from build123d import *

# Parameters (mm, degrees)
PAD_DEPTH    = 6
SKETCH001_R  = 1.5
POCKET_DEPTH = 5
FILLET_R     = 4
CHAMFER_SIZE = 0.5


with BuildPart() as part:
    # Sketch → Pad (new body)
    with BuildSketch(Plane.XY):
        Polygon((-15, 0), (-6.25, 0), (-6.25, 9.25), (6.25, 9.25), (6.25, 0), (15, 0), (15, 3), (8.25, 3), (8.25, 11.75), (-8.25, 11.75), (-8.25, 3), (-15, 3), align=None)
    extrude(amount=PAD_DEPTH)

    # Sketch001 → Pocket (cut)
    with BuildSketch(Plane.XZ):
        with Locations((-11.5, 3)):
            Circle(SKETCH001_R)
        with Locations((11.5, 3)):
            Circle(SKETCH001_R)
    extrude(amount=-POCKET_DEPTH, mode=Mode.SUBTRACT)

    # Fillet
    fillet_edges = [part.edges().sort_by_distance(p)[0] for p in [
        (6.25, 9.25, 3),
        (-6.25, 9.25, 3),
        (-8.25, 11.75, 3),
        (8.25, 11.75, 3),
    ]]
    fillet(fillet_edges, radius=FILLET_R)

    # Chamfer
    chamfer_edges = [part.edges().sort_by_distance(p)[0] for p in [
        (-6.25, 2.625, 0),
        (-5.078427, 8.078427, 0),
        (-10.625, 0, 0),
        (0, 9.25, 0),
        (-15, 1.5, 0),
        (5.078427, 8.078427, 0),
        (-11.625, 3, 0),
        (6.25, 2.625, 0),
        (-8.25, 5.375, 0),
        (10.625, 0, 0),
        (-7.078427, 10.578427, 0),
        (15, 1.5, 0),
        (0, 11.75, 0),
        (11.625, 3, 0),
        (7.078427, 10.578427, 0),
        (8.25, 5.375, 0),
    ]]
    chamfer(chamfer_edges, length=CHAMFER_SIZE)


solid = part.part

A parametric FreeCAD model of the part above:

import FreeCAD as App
import Part
import Sketcher


def edges_at(feature, points):
    """Names of the edges that pass closest to the given points."""
    edges = feature.Shape.Edges
    near = lambda p: min(range(len(edges)), key=lambda i: edges[i].distToShape(Part.Vertex(*p))[0])
    return sorted({f"Edge{near(p) + 1}" for p in points})

doc = App.newDocument("Part")
body = doc.addObject("PartDesign::Body", "Body")

sketch1 = doc.addObject("Sketcher::SketchObject", "Sketch")
body.addObject(sketch1)
sketch1.AttachmentSupport = (doc.XY_Plane, [""])
sketch1.MapMode = "FlatFace"
sketch1.addGeometry([
    Part.LineSegment(App.Vector(-15, 0, 0), App.Vector(-6.2, 0, 0)),
    Part.LineSegment(App.Vector(-6.2, 0, 0), App.Vector(-6.2, 9.2, 0)),
    Part.LineSegment(App.Vector(-6.2, 9.2, 0), App.Vector(6.2, 9.2, 0)),
    Part.LineSegment(App.Vector(6.2, 9.2, 0), App.Vector(6.2, 0, 0)),
    Part.LineSegment(App.Vector(6.2, 0, 0), App.Vector(15, 0, 0)),
    Part.LineSegment(App.Vector(15, 0, 0), App.Vector(15, 3, 0)),
    Part.LineSegment(App.Vector(15, 3, 0), App.Vector(8.2, 3, 0)),
    Part.LineSegment(App.Vector(8.2, 3, 0), App.Vector(8.2, 11.8, 0)),
    Part.LineSegment(App.Vector(8.2, 11.8, 0), App.Vector(-8.2, 11.8, 0)),
    Part.LineSegment(App.Vector(-8.2, 11.8, 0), App.Vector(-8.2, 3, 0)),
    Part.LineSegment(App.Vector(-8.2, 3, 0), App.Vector(-15, 3, 0)),
    Part.LineSegment(App.Vector(-15, 3, 0), App.Vector(-15, 0, 0)),
], False)
sketch1.addConstraint([
    Sketcher.Constraint("Coincident", 0, 2, 1, 1),
    Sketcher.Constraint("Coincident", 1, 2, 2, 1),
    Sketcher.Constraint("Coincident", 2, 2, 3, 1),
    Sketcher.Constraint("Coincident", 3, 2, 4, 1),
    Sketcher.Constraint("Coincident", 4, 2, 5, 1),
    Sketcher.Constraint("Coincident", 5, 2, 6, 1),
    Sketcher.Constraint("Coincident", 6, 2, 7, 1),
    Sketcher.Constraint("Coincident", 7, 2, 8, 1),
    Sketcher.Constraint("Coincident", 8, 2, 9, 1),
    Sketcher.Constraint("Coincident", 9, 2, 10, 1),
    Sketcher.Constraint("Coincident", 10, 2, 11, 1),
    Sketcher.Constraint("Coincident", 11, 2, 0, 1),
    Sketcher.Constraint("Horizontal", 0),
    Sketcher.Constraint("Vertical", 1),
    Sketcher.Constraint("Horizontal", 2),
    Sketcher.Constraint("Vertical", 3),
    Sketcher.Constraint("Horizontal", 4),
    Sketcher.Constraint("Vertical", 5),
    Sketcher.Constraint("Horizontal", 6),
    Sketcher.Constraint("Vertical", 7),
    Sketcher.Constraint("Horizontal", 8),
    Sketcher.Constraint("Vertical", 9),
    Sketcher.Constraint("Horizontal", 10),
    Sketcher.Constraint("Vertical", 11),
    Sketcher.Constraint("Symmetric", 0, 2, 3, 2, -1, 1),
    Sketcher.Constraint("Symmetric", 6, 2, 9, 2, -2),
    Sketcher.Constraint("Symmetric", 4, 2, 11, 2, -2),
    Sketcher.Constraint("Equal", 4, 7),
    Sketcher.Constraint("DistanceY", 5, 1, 5, 2, 3.0),
    Sketcher.Constraint("DistanceX", 2, 1, 2, 2, 12.5),
    Sketcher.Constraint("DistanceX", 8, 2, 8, 1, 16.5),
    Sketcher.Constraint("DistanceX", -1, 1, 4, 2, 15.0),
    Sketcher.Constraint("DistanceY", 1, 1, 1, 2, 9.25),
])
pad1 = doc.addObject("PartDesign::Pad", "Pad")
body.addObject(pad1)
pad1.Profile = sketch1
pad1.Length = 6

sketch2 = doc.addObject("Sketcher::SketchObject", "Sketch001")
body.addObject(sketch2)
sketch2.AttachmentSupport = (doc.XZ_Plane, [""])
sketch2.MapMode = "FlatFace"
sketch2.addGeometry([
    Part.Circle(App.Vector(-11.5, 3, 0), App.Vector(0, 0, 1), 1.5),
    Part.Circle(App.Vector(11.5, 3, 0), App.Vector(0, 0, 1), 1.5),
], False)
sketch2.addConstraint([
    Sketcher.Constraint("Equal", 0, 1),
    Sketcher.Constraint("Symmetric", 0, 3, 1, 3, -2),
    Sketcher.Constraint("Diameter", 0, 3.0),
    Sketcher.Constraint("DistanceY", -1, 1, 0, 3, 3.0),
    Sketcher.Constraint("DistanceX", 0, 3, 1, 3, 23.0),
])
pocket1 = doc.addObject("PartDesign::Pocket", "Pocket")
body.addObject(pocket1)
pocket1.Profile = sketch2
pocket1.Length = 5
doc.recompute()

fillet = doc.addObject("PartDesign::Fillet", "Fillet")
body.addObject(fillet)
fillet.Base = (pocket1, edges_at(pocket1, [
    (6.25, 9.25, 3),
    (-6.25, 9.25, 3),
    (-8.25, 11.75, 3),
    (8.25, 11.75, 3),
]))
fillet.Radius = 4
doc.recompute()

chamfer = doc.addObject("PartDesign::Chamfer", "Chamfer")
body.addObject(chamfer)
chamfer.Base = (fillet, edges_at(fillet, [
    (-6.25, 2.625, 0),
    (-5.078, 8.078, 0),
    (-10.625, 0, 0),
    (0, 9.25, 0),
    (-15, 1.5, 0),
    (5.078, 8.078, 0),
    (-11.625, 3, 0),
    (6.25, 2.625, 0),
    (-8.25, 5.375, 0),
    (10.625, 0, 0),
    (-7.078, 10.578, 0),
    (15, 1.5, 0),
    (0, 11.75, 0),
    (11.625, 3, 0),
    (7.078, 10.578, 0),
    (8.25, 5.375, 0),
]))
chamfer.Size = 0.5

doc.recompute()
